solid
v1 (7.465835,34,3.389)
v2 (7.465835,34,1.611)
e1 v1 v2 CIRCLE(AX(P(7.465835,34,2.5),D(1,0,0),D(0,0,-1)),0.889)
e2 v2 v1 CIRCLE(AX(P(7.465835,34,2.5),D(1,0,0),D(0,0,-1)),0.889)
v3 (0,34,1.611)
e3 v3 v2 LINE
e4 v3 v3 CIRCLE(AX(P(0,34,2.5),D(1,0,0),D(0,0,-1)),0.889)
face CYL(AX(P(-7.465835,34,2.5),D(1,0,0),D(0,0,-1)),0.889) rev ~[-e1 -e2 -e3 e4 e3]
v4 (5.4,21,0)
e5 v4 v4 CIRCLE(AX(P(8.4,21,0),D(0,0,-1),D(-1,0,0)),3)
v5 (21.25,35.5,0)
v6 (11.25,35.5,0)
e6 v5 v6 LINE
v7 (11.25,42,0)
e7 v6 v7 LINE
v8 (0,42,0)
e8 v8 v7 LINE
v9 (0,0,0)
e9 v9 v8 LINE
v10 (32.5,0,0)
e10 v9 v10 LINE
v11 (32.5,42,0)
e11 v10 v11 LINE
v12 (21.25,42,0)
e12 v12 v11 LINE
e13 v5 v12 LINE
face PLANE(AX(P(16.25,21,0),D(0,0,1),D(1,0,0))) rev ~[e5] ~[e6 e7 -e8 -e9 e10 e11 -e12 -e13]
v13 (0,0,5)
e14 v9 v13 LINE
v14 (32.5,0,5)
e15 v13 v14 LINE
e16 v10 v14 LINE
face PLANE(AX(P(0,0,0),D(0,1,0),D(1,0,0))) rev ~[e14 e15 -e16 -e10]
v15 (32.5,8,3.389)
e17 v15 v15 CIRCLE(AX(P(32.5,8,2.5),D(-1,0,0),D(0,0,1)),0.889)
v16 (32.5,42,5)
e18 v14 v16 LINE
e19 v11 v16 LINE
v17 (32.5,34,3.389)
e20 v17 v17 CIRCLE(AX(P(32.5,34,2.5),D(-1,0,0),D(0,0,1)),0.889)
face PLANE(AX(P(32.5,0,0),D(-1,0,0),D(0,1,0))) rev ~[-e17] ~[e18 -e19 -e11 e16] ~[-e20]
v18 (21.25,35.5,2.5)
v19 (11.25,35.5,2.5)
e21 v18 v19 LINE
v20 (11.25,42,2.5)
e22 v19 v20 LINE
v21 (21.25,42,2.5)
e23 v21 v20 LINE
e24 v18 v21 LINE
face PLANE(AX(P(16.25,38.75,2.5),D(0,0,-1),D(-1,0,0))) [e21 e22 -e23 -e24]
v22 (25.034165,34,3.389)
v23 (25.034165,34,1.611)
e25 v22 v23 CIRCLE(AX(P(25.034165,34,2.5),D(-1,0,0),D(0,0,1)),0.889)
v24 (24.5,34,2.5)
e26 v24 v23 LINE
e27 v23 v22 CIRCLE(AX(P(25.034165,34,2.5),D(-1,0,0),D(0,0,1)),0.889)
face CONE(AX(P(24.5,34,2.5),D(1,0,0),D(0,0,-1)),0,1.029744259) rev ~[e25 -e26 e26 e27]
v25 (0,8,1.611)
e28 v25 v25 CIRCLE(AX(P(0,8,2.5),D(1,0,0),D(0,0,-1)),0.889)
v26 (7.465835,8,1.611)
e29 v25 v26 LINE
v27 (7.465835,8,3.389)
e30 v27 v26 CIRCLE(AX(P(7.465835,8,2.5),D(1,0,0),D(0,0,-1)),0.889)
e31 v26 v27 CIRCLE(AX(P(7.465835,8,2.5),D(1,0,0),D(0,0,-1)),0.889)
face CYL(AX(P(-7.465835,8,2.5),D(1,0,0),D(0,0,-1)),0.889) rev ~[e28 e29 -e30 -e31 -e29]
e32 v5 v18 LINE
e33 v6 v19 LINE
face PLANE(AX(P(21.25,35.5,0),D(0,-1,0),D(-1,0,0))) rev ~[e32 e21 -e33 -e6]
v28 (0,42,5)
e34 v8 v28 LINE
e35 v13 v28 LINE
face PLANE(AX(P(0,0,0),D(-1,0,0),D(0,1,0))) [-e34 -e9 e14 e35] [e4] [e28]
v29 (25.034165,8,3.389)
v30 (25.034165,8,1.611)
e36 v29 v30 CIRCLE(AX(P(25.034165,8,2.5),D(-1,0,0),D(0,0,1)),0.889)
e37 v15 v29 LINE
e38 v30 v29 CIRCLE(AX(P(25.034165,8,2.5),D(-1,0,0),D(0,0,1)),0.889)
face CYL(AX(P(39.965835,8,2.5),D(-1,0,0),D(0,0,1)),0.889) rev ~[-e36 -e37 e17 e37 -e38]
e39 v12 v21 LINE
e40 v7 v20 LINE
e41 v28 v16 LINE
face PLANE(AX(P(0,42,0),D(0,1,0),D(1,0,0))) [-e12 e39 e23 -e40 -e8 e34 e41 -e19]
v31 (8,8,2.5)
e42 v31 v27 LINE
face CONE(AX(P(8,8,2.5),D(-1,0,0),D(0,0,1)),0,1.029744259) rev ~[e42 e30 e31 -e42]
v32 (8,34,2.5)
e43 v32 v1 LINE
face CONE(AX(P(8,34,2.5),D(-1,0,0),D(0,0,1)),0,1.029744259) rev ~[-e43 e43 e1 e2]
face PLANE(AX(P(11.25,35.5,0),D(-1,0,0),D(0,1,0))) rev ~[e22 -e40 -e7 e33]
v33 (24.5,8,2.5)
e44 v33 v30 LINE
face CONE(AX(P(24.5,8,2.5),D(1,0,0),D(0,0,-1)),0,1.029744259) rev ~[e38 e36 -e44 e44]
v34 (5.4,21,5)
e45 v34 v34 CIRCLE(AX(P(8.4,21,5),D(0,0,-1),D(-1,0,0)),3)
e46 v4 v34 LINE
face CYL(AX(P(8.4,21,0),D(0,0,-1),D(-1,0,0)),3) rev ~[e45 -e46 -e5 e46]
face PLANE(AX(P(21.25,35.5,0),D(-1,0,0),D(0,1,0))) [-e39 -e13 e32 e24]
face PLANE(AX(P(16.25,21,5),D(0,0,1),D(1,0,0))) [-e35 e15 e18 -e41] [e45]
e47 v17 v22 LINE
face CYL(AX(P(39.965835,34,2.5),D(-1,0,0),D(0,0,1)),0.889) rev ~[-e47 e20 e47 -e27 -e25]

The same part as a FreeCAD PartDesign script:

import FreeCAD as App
import Part
import Sketcher

V = App.Vector
Q = App.Units.Quantity

doc = App.newDocument("Part")
body = doc.addObject("PartDesign::Body", "Body")

# Sketch on XY plane
sketch1 = body.newObject("Sketcher::SketchObject", "Sketch")
sketch1.AttachmentSupport = (doc.getObject("XY_Plane"), [""])
sketch1.MapMode = "FlatFace"
sketch1.addGeometry(Part.LineSegment(V(0, 42, 0), V(0, 0, 0)), False)
sketch1.addGeometry(Part.LineSegment(V(0, 0, 0), V(32, 0, 0)), False)
sketch1.addGeometry(Part.LineSegment(V(32, 0, 0), V(32, 42, 0)), False)
sketch1.addGeometry(Part.LineSegment(V(32, 42, 0), V(0, 42, 0)), False)
sketch1.addConstraint(Sketcher.Constraint("Coincident", 0, 2, 1, 1))
sketch1.addConstraint(Sketcher.Constraint("Coincident", 1, 2, 2, 1))
sketch1.addConstraint(Sketcher.Constraint("Coincident", 2, 2, 3, 1))
sketch1.addConstraint(Sketcher.Constraint("Coincident", 3, 2, 0, 1))
sketch1.addConstraint(Sketcher.Constraint("Vertical", 0))
sketch1.addConstraint(Sketcher.Constraint("Horizontal", 1))
sketch1.addConstraint(Sketcher.Constraint("Vertical", 2))
sketch1.addConstraint(Sketcher.Constraint("Horizontal", 3))
sketch1.addConstraint(Sketcher.Constraint("Coincident", 0, 2, -1, 1))
sketch1.addConstraint(Sketcher.Constraint("DistanceY", 0, 2, 0, 1, Q("42 mm")))
sketch1.addConstraint(Sketcher.Constraint("DistanceX", 1, 1, 1, 2, Q("32.5 mm")))
pad1 = body.newObject("PartDesign::Pad", "Pad")
pad1.Profile = sketch1
pad1.Length = 5

# Sketch on YZ plane
sketch2 = body.newObject("Sketcher::SketchObject", "Sketch001")
sketch2.AttachmentSupport = (doc.getObject("YZ_Plane"), [""])
sketch2.MapMode = "FlatFace"
sketch2.addGeometry(Part.Circle(V(34, 2.5, 0), V(0, 0, 1), 0.9), False)
sketch2.addGeometry(Part.Circle(V(8, 2.5, 0), V(0, 0, 1), 0.9), False)
sketch2.addConstraint(Sketcher.Constraint("Equal", 0, 1))
sketch2.addConstraint(Sketcher.Constraint("Horizontal", 0, 3, 1, 3))
sketch2.addConstraint(Sketcher.Constraint("Diameter", 0, Q("1.778 mm")))
sketch2.addConstraint(Sketcher.Constraint("DistanceX", -1, 1, 0, 3, Q("34 mm")))
sketch2.addConstraint(Sketcher.Constraint("DistanceX", -1, 1, 1, 3, Q("8 mm")))
sketch2.addConstraint(Sketcher.Constraint("DistanceY", -1, 1, 0, 3, Q("2.5 mm")))
doc.recompute()
hole = body.newObject("PartDesign::Hole", "Hole")
hole.Profile = sketch2
hole.ThreadType = "None"
hole.Diameter = 1.778
hole.DepthType = "Dimension"
hole.Depth = 7.465835
hole.DrillPoint = "Angled"
hole.DrillPointAngle = 118
hole.Reversed = True

# Sketch on YZ plane
sketch3 = body.newObject("Sketcher::SketchObject", "Sketch002")
sketch3.AttachmentSupport = (doc.getObject("YZ_Plane"), [""])
sketch3.MapMode = "FlatFace"
sketch3.AttachmentOffset = App.Placement(V(0, 0, 32.5), App.Rotation())
sketch3.addGeometry(Part.Circle(V(34, 2.5, 0), V(0, 0, 1), 0.9), False)
sketch3.addGeometry(Part.Circle(V(8, 2.5, 0), V(0, 0, 1), 0.9), False)
sketch3.addConstraint(Sketcher.Constraint("Equal", 0, 1))
sketch3.addConstraint(Sketcher.Constraint("Horizontal", 0, 3, 1, 3))
sketch3.addConstraint(Sketcher.Constraint("Diameter", 0, Q("1.778 mm")))
sketch3.addConstraint(Sketcher.Constraint("DistanceX", -1, 1, 0, 3, Q("34 mm")))
sketch3.addConstraint(Sketcher.Constraint("DistanceX", -1, 1, 1, 3, Q("8 mm")))
sketch3.addConstraint(Sketcher.Constraint("DistanceY", -1, 1, 0, 3, Q("2.5 mm")))
doc.recompute()
hole2 = body.newObject("PartDesign::Hole", "Hole001")
hole2.Profile = sketch3
hole2.ThreadType = "None"
hole2.Diameter = 1.778
hole2.DepthType = "Dimension"
hole2.Depth = 7.465835
hole2.DrillPoint = "Angled"
hole2.DrillPointAngle = 118

# Sketch on XY plane
sketch4 = body.newObject("Sketcher::SketchObject", "Sketch003")
sketch4.AttachmentSupport = (doc.getObject("XY_Plane"), [""])
sketch4.MapMode = "FlatFace"
sketch4.addGeometry(Part.Circle(V(8.4, 21, 0), V(0, 0, 1), 3), False)
sketch4.addConstraint(Sketcher.Constraint("Diameter", 0, Q("6 mm")))
sketch4.addConstraint(Sketcher.Constraint("DistanceY", -1, 1, 0, 3, Q("21 mm")))
sketch4.addConstraint(Sketcher.Constraint("DistanceX", -1, 1, 0, 3, Q("8.4 mm")))
pocket1 = body.newObject("PartDesign::Pocket", "Pocket")
pocket1.Profile = sketch4
pocket1.Length = 5
pocket1.Reversed = True

# Sketch on XY plane
sketch5 = body.newObject("Sketcher::SketchObject", "Sketch004")
sketch5.AttachmentSupport = (doc.getObject("XY_Plane"), [""])
sketch5.MapMode = "FlatFace"
sketch5.addGeometry(Part.LineSegment(V(21, 42, 0), V(21, 36, 0)), False)
sketch5.addGeometry(Part.LineSegment(V(21, 36, 0), V(11, 36, 0)), False)
sketch5.addGeometry(Part.LineSegment(V(11, 36, 0), V(11, 42, 0)), False)
sketch5.addGeometry(Part.LineSegment(V(11, 42, 0), V(21, 42, 0)), False)
sketch5.addConstraint(Sketcher.Constraint("Coincident", 0, 2, 1, 1))
sketch5.addConstraint(Sketcher.Constraint("Coincident", 1, 2, 2, 1))
sketch5.addConstraint(Sketcher.Constraint("Coincident", 2, 2, 3, 1))
sketch5.addConstraint(Sketcher.Constraint("Coincident", 3, 2, 0, 1))
sketch5.addConstraint(Sketcher.Constraint("Vertical", 0))
sketch5.addConstraint(Sketcher.Constraint("Horizontal", 1))
sketch5.addConstraint(Sketcher.Constraint("Vertical", 2))
sketch5.addConstraint(Sketcher.Constraint("Horizontal", 3))
sketch5.addConstraint(Sketcher.Constraint("DistanceX", 1, 2, 1, 1, Q("10 mm")))
sketch5.addConstraint(Sketcher.Constraint("DistanceY", 0, 2, 0, 1, Q("6.5 mm")))
sketch5.addConstraint(Sketcher.Constraint("DistanceY", -1, 1, 2, 2, Q("42 mm")))
sketch5.addConstraint(Sketcher.Constraint("DistanceX", -1, 1, 0, 2, Q("21.25 mm")))
pocket2 = body.newObject("PartDesign::Pocket", "Pocket001")
pocket2.Profile = sketch5
pocket2.Length = 2.5
pocket2.Reversed = True

doc.recompute()
